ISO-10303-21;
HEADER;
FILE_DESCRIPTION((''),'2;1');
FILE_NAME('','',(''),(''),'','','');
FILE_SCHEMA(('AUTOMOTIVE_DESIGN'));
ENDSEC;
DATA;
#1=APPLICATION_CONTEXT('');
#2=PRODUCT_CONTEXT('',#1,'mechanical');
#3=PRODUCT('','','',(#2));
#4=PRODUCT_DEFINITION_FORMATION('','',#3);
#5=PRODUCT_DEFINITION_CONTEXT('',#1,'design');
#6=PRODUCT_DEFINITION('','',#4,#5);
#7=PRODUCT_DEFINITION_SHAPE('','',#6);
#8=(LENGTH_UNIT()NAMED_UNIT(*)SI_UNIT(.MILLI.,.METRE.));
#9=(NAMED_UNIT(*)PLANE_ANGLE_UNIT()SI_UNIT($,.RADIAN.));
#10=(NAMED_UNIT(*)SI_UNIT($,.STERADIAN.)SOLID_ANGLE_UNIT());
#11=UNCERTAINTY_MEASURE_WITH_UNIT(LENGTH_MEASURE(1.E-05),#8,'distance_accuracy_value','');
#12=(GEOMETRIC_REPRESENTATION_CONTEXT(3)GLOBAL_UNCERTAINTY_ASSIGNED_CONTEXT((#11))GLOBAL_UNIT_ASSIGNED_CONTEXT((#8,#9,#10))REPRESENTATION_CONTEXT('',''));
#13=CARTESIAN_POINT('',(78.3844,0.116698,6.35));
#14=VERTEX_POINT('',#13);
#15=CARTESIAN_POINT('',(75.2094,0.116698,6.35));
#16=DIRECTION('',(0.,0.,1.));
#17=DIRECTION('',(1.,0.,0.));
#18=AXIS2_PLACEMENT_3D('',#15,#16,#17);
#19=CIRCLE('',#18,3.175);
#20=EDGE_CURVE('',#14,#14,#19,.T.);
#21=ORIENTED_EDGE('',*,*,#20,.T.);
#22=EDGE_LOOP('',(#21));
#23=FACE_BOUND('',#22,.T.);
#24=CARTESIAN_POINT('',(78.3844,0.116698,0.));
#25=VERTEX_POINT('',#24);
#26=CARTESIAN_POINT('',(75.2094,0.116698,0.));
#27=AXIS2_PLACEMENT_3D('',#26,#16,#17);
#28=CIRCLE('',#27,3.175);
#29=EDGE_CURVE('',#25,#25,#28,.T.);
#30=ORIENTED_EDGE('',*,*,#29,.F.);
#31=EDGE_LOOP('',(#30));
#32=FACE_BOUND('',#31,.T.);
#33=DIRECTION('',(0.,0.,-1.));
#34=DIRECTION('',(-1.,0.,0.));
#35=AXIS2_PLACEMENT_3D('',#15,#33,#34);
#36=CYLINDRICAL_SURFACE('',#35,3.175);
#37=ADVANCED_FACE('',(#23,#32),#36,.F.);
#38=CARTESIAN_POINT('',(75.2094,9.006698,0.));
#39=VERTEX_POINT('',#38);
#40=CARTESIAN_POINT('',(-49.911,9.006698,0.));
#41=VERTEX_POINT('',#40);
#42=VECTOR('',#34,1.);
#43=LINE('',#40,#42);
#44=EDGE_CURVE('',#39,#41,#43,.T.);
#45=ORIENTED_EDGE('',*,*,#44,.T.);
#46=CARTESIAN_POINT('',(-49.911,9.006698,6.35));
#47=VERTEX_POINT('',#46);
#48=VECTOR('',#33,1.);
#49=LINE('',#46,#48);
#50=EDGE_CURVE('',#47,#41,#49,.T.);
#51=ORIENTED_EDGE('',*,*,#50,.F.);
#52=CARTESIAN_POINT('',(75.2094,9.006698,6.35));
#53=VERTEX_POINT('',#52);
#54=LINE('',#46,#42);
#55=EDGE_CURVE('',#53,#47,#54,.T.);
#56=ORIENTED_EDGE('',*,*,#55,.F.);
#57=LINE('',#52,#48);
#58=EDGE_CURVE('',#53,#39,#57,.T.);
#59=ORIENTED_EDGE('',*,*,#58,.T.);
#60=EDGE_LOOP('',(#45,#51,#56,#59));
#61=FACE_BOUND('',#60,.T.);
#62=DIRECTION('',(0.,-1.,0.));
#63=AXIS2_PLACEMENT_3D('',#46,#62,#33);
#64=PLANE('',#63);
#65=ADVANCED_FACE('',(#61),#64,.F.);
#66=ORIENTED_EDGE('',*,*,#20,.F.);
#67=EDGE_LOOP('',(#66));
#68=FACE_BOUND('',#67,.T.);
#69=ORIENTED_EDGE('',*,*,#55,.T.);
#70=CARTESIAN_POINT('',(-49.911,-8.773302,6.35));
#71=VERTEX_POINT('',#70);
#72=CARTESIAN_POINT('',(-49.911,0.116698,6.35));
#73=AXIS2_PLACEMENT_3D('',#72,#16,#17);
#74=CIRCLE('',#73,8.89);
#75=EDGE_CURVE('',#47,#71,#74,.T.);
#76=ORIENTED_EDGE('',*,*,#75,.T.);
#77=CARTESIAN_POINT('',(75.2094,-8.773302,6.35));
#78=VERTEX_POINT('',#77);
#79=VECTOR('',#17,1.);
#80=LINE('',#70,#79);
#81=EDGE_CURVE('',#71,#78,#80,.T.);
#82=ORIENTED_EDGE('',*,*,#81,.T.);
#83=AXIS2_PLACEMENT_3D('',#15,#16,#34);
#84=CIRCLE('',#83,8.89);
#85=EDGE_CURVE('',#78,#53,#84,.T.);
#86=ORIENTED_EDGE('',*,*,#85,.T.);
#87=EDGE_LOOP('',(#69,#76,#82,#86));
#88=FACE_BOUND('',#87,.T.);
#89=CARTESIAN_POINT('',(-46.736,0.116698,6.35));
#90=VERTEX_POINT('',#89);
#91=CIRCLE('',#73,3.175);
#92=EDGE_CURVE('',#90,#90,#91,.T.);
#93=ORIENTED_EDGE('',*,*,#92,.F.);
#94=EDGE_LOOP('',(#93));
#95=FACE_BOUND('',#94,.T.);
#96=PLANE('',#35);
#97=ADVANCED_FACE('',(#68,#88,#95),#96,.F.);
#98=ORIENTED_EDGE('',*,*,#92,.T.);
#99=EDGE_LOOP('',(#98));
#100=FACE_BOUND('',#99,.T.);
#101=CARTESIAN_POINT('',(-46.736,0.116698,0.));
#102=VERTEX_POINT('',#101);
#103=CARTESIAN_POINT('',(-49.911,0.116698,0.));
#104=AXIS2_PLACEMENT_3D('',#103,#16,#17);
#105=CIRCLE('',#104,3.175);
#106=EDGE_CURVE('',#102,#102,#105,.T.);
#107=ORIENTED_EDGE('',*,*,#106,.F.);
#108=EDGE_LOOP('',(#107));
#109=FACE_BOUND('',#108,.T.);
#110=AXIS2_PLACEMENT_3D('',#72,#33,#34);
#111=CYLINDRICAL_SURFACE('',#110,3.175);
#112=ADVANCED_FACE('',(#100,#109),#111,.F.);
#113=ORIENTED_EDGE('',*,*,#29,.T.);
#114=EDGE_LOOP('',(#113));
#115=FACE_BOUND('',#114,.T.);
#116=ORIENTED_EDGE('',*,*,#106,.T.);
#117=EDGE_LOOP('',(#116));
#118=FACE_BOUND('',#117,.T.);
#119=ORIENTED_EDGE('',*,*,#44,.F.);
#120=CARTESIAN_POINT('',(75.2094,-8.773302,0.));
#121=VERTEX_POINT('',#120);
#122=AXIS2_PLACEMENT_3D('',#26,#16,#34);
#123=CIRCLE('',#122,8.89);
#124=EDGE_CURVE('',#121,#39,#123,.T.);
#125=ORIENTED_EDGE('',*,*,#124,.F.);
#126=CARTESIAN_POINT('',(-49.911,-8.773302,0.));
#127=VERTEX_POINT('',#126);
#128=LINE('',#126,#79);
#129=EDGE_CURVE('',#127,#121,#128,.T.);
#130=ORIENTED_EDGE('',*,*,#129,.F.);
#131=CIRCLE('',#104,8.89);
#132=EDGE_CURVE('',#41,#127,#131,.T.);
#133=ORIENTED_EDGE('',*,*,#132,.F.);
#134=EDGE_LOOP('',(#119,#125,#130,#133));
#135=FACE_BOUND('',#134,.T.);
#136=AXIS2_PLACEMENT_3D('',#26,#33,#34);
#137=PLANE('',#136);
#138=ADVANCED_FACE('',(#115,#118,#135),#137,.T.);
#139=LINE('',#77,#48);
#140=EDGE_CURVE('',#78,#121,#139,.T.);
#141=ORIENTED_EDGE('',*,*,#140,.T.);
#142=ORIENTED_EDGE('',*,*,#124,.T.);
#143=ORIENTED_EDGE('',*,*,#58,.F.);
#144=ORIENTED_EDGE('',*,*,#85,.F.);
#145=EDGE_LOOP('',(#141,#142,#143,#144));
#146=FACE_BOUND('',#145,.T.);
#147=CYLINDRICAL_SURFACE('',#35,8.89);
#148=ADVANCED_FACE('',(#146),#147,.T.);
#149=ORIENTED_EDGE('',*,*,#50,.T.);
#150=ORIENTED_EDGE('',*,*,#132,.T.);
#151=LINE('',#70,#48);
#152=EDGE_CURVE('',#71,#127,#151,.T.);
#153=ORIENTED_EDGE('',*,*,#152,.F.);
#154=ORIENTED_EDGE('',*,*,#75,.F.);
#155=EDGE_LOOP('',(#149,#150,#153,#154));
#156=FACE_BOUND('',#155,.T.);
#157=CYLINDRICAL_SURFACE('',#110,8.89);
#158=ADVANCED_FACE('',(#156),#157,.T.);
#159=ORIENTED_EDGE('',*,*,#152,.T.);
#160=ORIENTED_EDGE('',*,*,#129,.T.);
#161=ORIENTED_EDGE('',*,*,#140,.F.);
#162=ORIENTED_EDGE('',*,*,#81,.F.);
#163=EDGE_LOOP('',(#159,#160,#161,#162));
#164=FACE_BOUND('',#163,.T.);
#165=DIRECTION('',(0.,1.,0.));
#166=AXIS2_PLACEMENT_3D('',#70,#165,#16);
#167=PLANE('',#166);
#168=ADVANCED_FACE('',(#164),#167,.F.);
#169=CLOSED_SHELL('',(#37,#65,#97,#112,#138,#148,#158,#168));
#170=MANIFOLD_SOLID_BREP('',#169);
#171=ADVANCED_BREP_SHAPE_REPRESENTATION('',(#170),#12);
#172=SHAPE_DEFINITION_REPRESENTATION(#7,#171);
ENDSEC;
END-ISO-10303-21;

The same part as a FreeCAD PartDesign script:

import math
import FreeCAD as App
import Part
import Sketcher
Q = App.Units.Quantity

doc = App.newDocument("Part")
body = doc.addObject("PartDesign::Body", "Body")

# Sketch on XY plane
sketch1 = body.newObject("Sketcher::SketchObject", "Sketch")
sketch1.AttachmentSupport = (doc.getObject("XY_Plane"), [""])
sketch1.MapMode = "FlatFace"
sketch1.addGeometry(Part.LineSegment(App.Vector(-49.911, -8.773302, 0), App.Vector(75.2094, -8.773302, 0)), False)
sketch1.addGeometry(Part.ArcOfCircle(Part.Circle(App.Vector(75.2094, 0.116698, 0), App.Vector(0, 0, 1), 8.89), math.radians(-90), math.radians(90)), False)
sketch1.addGeometry(Part.LineSegment(App.Vector(75.2094, 9.006698, 0), App.Vector(-49.911, 9.006698, 0)), False)
sketch1.addGeometry(Part.ArcOfCircle(Part.Circle(App.Vector(-49.911, 0.116698, 0), App.Vector(0, 0, 1), 8.89), math.radians(90), math.radians(270)), False)
sketch1.addGeometry(Part.Circle(App.Vector(-49.911, 0.116698, 0), App.Vector(0, 0, 1), 3.175), False)
sketch1.addGeometry(Part.Circle(App.Vector(75.2094, 0.116698, 0), App.Vector(0, 0, 1), 3.175), False)
sketch1.addConstraint(Sketcher.Constraint("Tangent", 0, 2, 1, 1))
sketch1.addConstraint(Sketcher.Constraint("Tangent", 1, 2, 2, 1))
sketch1.addConstraint(Sketcher.Constraint("Tangent", 2, 2, 3, 1))
sketch1.addConstraint(Sketcher.Constraint("Tangent", 3, 2, 0, 1))
sketch1.addConstraint(Sketcher.Constraint("Horizontal", 0))
sketch1.addConstraint(Sketcher.Constraint("Horizontal", 2))
sketch1.addConstraint(Sketcher.Constraint("Coincident", 4, 3, 3, 3))
sketch1.addConstraint(Sketcher.Constraint("Coincident", 5, 3, 1, 3))
sketch1.addConstraint(Sketcher.Constraint("Equal", 4, 5))
sketch1.addConstraint(Sketcher.Constraint("Diameter", 4, Q("0.25 in")))
sketch1.addConstraint(Sketcher.Constraint("Radius", 1, Q("0.35 in")))
sketch1.addConstraint(Sketcher.Constraint("DistanceX", 0, 1, 0, 2, Q("4.926 in")))
sketch1.addConstraint(Sketcher.Constraint("DistanceX", -1, 1, 1, 3, Q("2.961 in")))
sketch1.addConstraint(Sketcher.Constraint("DistanceY", -1, 1, 1, 3, Q("0.116698 mm")))
pad1 = body.newObject("PartDesign::Pad", "Pad")
pad1.Profile = sketch1
pad1.Length = Q("0.25 in")

doc.recompute()
